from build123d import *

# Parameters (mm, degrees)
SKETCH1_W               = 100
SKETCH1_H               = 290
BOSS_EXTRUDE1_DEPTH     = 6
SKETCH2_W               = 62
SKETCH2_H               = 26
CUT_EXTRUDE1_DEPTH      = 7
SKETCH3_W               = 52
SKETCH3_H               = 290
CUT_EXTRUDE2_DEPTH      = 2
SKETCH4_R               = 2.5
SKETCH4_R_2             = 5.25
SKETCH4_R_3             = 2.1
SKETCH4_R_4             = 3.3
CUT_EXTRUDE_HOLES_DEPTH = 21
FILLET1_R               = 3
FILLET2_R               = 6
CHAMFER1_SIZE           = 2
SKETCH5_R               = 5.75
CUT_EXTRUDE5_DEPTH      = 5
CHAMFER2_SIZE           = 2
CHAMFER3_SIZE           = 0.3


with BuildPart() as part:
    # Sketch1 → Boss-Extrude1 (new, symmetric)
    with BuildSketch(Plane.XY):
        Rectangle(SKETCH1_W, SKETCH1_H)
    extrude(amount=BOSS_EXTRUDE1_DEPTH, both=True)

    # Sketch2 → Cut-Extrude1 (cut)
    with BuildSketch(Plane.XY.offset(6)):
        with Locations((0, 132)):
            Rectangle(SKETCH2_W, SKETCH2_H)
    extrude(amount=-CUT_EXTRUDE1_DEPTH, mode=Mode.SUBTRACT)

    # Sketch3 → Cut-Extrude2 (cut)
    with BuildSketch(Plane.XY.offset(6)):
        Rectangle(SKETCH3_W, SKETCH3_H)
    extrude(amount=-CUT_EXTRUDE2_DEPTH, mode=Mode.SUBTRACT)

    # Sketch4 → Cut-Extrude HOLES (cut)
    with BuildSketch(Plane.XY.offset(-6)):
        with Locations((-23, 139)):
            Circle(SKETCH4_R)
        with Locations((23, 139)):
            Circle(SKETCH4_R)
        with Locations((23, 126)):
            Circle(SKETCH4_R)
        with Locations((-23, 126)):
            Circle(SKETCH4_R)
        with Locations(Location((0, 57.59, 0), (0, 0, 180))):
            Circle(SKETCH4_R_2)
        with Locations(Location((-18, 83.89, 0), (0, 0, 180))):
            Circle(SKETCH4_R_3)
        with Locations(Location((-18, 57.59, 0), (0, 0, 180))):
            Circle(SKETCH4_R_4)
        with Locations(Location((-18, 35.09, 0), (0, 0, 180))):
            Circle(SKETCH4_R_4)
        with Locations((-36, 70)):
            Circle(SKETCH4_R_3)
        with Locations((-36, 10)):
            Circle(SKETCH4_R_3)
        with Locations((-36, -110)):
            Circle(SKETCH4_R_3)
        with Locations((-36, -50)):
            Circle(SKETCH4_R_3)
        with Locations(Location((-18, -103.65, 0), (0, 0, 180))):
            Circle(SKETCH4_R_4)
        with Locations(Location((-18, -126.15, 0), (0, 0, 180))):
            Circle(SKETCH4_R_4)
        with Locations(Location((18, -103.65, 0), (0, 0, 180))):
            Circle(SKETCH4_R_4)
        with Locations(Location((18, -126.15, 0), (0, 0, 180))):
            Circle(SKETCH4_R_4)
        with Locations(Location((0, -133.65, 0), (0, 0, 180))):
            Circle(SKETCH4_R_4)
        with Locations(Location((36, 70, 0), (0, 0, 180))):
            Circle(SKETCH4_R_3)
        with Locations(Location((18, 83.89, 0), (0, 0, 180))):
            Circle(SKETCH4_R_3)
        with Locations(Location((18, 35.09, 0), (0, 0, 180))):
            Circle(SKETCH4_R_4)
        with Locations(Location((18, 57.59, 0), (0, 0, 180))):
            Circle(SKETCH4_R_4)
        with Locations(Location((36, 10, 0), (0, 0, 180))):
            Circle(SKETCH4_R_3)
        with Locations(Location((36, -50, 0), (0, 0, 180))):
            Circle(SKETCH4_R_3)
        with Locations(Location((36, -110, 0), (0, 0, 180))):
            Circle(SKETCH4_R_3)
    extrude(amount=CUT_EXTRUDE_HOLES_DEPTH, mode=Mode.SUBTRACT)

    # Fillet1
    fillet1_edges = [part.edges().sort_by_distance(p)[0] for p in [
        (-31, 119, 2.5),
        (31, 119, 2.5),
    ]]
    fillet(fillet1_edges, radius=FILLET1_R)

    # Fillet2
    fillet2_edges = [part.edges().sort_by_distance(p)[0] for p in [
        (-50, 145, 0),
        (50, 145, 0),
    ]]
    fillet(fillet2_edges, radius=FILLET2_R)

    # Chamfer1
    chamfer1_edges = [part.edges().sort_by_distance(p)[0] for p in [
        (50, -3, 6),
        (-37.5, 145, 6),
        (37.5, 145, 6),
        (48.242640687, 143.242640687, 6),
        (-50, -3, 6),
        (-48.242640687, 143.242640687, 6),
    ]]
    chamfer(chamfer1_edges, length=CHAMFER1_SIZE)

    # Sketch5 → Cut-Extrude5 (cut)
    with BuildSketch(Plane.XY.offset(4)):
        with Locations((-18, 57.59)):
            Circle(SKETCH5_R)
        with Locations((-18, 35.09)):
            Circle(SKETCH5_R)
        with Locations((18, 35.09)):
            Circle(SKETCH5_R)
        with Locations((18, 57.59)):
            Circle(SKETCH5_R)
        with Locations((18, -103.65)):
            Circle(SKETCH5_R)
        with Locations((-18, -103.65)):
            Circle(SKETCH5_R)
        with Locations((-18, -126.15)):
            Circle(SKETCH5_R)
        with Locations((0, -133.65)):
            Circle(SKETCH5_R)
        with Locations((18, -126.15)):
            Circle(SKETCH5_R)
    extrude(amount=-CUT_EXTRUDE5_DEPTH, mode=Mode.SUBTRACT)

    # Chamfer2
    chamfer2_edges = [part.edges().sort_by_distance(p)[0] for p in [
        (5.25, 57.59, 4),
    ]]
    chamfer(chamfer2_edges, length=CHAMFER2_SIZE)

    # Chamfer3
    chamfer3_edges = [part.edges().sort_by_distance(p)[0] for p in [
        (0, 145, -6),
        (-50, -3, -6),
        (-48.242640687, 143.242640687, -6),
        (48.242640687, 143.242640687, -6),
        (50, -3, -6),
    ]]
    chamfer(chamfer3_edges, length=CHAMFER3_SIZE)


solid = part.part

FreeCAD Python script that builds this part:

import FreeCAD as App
import Part
import Sketcher

V = App.Vector


def edges_at(feature, points):
    """Names of the edges that pass closest to the given points."""
    edges = feature.Shape.Edges
    near = lambda p: min(range(len(edges)), key=lambda i: edges[i].distToShape(Part.Vertex(*p))[0])
    return sorted({f"Edge{near(p) + 1}" for p in points})


def add_polygon(sketch, points):
    """Adds a closed chain of lines whose ends are joined by coincident constraints."""
    first, n = sketch.GeometryCount, len(points)
    for a, b in zip(points, points[1:] + points[:1]):
        sketch.addGeometry(Part.LineSegment(App.Vector(*a, 0), App.Vector(*b, 0)), False)
    for i in range(n):
        sketch.addConstraint(Sketcher.Constraint("Coincident", first + i, 2, first + (i + 1) % n, 1))

doc = App.newDocument("Part")
body = doc.addObject("PartDesign::Body", "Body")

sketch1 = body.newObject("Sketcher::SketchObject", "Sketch")
sketch1.AttachmentSupport = (doc.getObject("XY_Plane"), [""])
sketch1.MapMode = "FlatFace"
add_polygon(sketch1, [(-50, 145), (-50, -145), (50, -145), (50, 145)])
sketch1.addConstraint([
    Sketcher.Constraint("Vertical", 0),
    Sketcher.Constraint("Horizontal", 1),
    Sketcher.Constraint("Vertical", 2),
    Sketcher.Constraint("Horizontal", 3),
    Sketcher.Constraint("Symmetric", 0, 2, 2, 2, -1, 1),
    Sketcher.Constraint("DistanceX", 1, 1, 1, 2, 100.0),
    Sketcher.Constraint("DistanceY", 0, 2, 0, 1, 290.0),
])
pad1 = body.newObject("PartDesign::Pad", "Pad")
pad1.Profile = sketch1
pad1.Length = 12
pad1.Midplane = True

sketch2 = body.newObject("Sketcher::SketchObject", "Sketch001")
sketch2.AttachmentSupport = (doc.getObject("XY_Plane"), [""])
sketch2.MapMode = "FlatFace"
sketch2.AttachmentOffset = App.Placement(V(0, 0, 6), App.Rotation())
add_polygon(sketch2, [(-31, 145), (-31, 119), (31, 119), (31, 145)])
sketch2.addConstraint([
    Sketcher.Constraint("Vertical", 0),
    Sketcher.Constraint("Horizontal", 1),
    Sketcher.Constraint("Vertical", 2),
    Sketcher.Constraint("Horizontal", 3),
    Sketcher.Constraint("DistanceX", 1, 1, 1, 2, 62.0),
    Sketcher.Constraint("DistanceY", 0, 2, 0, 1, 26.0),
    Sketcher.Constraint("DistanceX", 0, 2, -1, 1, 31.0),
    Sketcher.Constraint("DistanceY", -1, 1, 0, 2, 119.0),
])
pocket1 = body.newObject("PartDesign::Pocket", "Pocket")
pocket1.Profile = sketch2
pocket1.Length = 7

sketch3 = body.newObject("Sketcher::SketchObject", "Sketch002")
sketch3.AttachmentSupport = (doc.getObject("XY_Plane"), [""])
sketch3.MapMode = "FlatFace"
sketch3.AttachmentOffset = App.Placement(V(0, 0, 6), App.Rotation())
add_polygon(sketch3, [(-26, 145), (-26, -145), (26, -145), (26, 145)])
sketch3.addConstraint([
    Sketcher.Constraint("Vertical", 0),
    Sketcher.Constraint("Horizontal", 1),
    Sketcher.Constraint("Vertical", 2),
    Sketcher.Constraint("Horizontal", 3),
    Sketcher.Constraint("Symmetric", 0, 2, 2, 2, -1, 1),
    Sketcher.Constraint("DistanceX", 1, 1, 1, 2, 52.0),
    Sketcher.Constraint("DistanceY", 0, 2, 0, 1, 290.0),
])
pocket2 = body.newObject("PartDesign::Pocket", "Pocket001")
pocket2.Profile = sketch3
pocket2.Length = 2

sketch4 = body.newObject("Sketcher::SketchObject", "Sketch003")
sketch4.AttachmentSupport = (doc.getObject("XY_Plane"), [""])
sketch4.MapMode = "FlatFace"
sketch4.AttachmentOffset = App.Placement(V(0, 0, -6), App.Rotation())
sketch4.addGeometry([
    Part.Circle(V(-23, 139, 0), V(0, 0, 1), 2.5),
    Part.Circle(V(23, 139, 0), V(0, 0, 1), 2.5),
    Part.Circle(V(23, 126, 0), V(0, 0, 1), 2.5),
    Part.Circle(V(-23, 126, 0), V(0, 0, 1), 2.5),
    Part.Circle(V(0, 57.6, 0), V(0, 0, 1), 5.2),
    Part.Circle(V(-18, 83.9, 0), V(0, 0, 1), 2.1),
    Part.Circle(V(-18, 57.6, 0), V(0, 0, 1), 3.3),
    Part.Circle(V(-18, 35.1, 0), V(0, 0, 1), 3.3),
    Part.Circle(V(-36, 70, 0), V(0, 0, 1), 2.1),
    Part.Circle(V(-36, 10, 0), V(0, 0, 1), 2.1),
    Part.Circle(V(-36, -110, 0), V(0, 0, 1), 2.1),
    Part.Circle(V(-36, -50, 0), V(0, 0, 1), 2.1),
    Part.Circle(V(-18, -103.7, 0), V(0, 0, 1), 3.3),
    Part.Circle(V(-18, -126.2, 0), V(0, 0, 1), 3.3),
    Part.Circle(V(18, -103.7, 0), V(0, 0, 1), 3.3),
    Part.Circle(V(18, -126.2, 0), V(0, 0, 1), 3.3),
    Part.Circle(V(0, -133.7, 0), V(0, 0, 1), 3.3),
    Part.Circle(V(36, 70, 0), V(0, 0, 1), 2.1),
    Part.Circle(V(18, 83.9, 0), V(0, 0, 1), 2.1),
    Part.Circle(V(18, 35.1, 0), V(0, 0, 1), 3.3),
    Part.Circle(V(18, 57.6, 0), V(0, 0, 1), 3.3),
    Part.Circle(V(36, 10, 0), V(0, 0, 1), 2.1),
    Part.Circle(V(36, -50, 0), V(0, 0, 1), 2.1),
    Part.Circle(V(36, -110, 0), V(0, 0, 1), 2.1),
], False)
sketch4.addConstraint([
    Sketcher.Constraint("Equal", 0, 1),
    Sketcher.Constraint("Equal", 1, 2),
    Sketcher.Constraint("Equal", 2, 3),
    Sketcher.Constraint("Equal", 6, 7),
    Sketcher.Constraint("Equal", 5, 8),
    Sketcher.Constraint("Equal", 8, 9),
    Sketcher.Constraint("Equal", 9, 10),
    Sketcher.Constraint("Equal", 10, 11),
    Sketcher.Constraint("Equal", 7, 12),
    Sketcher.Constraint("Equal", 12, 13),
    Sketcher.Constraint("Equal", 13, 14),
    Sketcher.Constraint("Equal", 14, 15),
    Sketcher.Constraint("Equal", 15, 16),
    Sketcher.Constraint("Equal", 11, 17),
    Sketcher.Constraint("Equal", 17, 18),
    Sketcher.Constraint("Equal", 16, 19),
    Sketcher.Constraint("Equal", 19, 20),
    Sketcher.Constraint("Equal", 18, 21),
    Sketcher.Constraint("Equal", 21, 22),
    Sketcher.Constraint("Equal", 22, 23),
    Sketcher.Constraint("Symmetric", 0, 3, 1, 3, -2),
    Sketcher.Constraint("Symmetric", 2, 3, 3, 3, -2),
    Sketcher.Constraint("Symmetric", 12, 3, 14, 3, -2),
    Sketcher.Constraint("Symmetric", 13, 3, 15, 3, -2),
    Sketcher.Constraint("Symmetric", 8, 3, 17, 3, -2),
    Sketcher.Constraint("Symmetric", 5, 3, 18, 3, -2),
    Sketcher.Constraint("Symmetric", 7, 3, 19, 3, -2),
    Sketcher.Constraint("Symmetric", 6, 3, 20, 3, -2),
    Sketcher.Constraint("Symmetric", 9, 3, 21, 3, -2),
    Sketcher.Constraint("Symmetric", 11, 3, 22, 3, -2),
    Sketcher.Constraint("Symmetric", 10, 3, 23, 3, -2),
    Sketcher.Constraint("PointOnObject", 4, 3, -2),
    Sketcher.Constraint("PointOnObject", 16, 3, -2),
    Sketcher.Constraint("Horizontal", 4, 3, 6, 3),
    Sketcher.Constraint("Vertical", 1, 3, 2, 3),
    Sketcher.Constraint("Vertical", 5, 3, 6, 3),
    Sketcher.Constraint("Vertical", 6, 3, 7, 3),
    Sketcher.Constraint("Vertical", 8, 3, 9, 3),
    Sketcher.Constraint("Vertical", 9, 3, 10, 3),
    Sketcher.Constraint("Vertical", 10, 3, 11, 3),
    Sketcher.Constraint("Vertical", 7, 3, 12, 3),
    Sketcher.Constraint("Vertical", 12, 3, 13, 3),
    Sketcher.Constraint("Diameter", 0, 5.0),
    Sketcher.Constraint("Diameter", 4, 10.5),
    Sketcher.Constraint("Diameter", 5, 4.2),
    Sketcher.Constraint("Diameter", 6, 6.6),
    Sketcher.Constraint("DistanceX", 0, 3, -1, 1, 23.0),
    Sketcher.Constraint("DistanceY", -1, 1, 0, 3, 139.0),
    Sketcher.Constraint("DistanceY", -1, 1, 2, 3, 126.0),
    Sketcher.Constraint("DistanceX", 5, 3, -1, 1, 18.0),
    Sketcher.Constraint("DistanceX", 8, 3, -1, 1, 36.0),
    Sketcher.Constraint("DistanceY", -1, 1, 8, 3, 70.0),
    Sketcher.Constraint("DistanceY", -1, 1, 9, 3, 10.0),
    Sketcher.Constraint("DistanceY", 10, 3, -1, 1, 110.0),
    Sketcher.Constraint("DistanceY", 11, 3, -1, 1, 50.0),
    Sketcher.Constraint("DistanceY", 16, 3, 12, 3, 30.0),
    Sketcher.Constraint("DistanceY", 4, 3, 5, 3, 26.3),
    Sketcher.Constraint("DistanceY", 7, 3, 6, 3, 22.5),
    Sketcher.Constraint("DistanceY", 13, 3, 12, 3, 22.5),
    Sketcher.Constraint("DistanceY", -1, 1, 4, 3, 57.59),
    Sketcher.Constraint("DistanceY", 12, 3, -1, 1, 103.65),
])
pocket3 = body.newObject("PartDesign::Pocket", "Pocket002")
pocket3.Profile = sketch4
pocket3.Length = 21
pocket3.Reversed = True
doc.recompute()

fillet = body.newObject("PartDesign::Fillet", "Fillet")
fillet.Base = (pocket3, edges_at(pocket3, [(-31, 119, 2.5), (31, 119, 2.5)]))
fillet.Radius = 3
doc.recompute()

fillet2 = body.newObject("PartDesign::Fillet", "Fillet001")
fillet2.Base = (fillet, edges_at(fillet, [(-50, 145, 0), (50, 145, 0)]))
fillet2.Radius = 6
doc.recompute()

chamfer = body.newObject("PartDesign::Chamfer", "Chamfer")
chamfer.Base = (fillet2, edges_at(fillet2, [
    (50, -3, 6),
    (-37.5, 145, 6),
    (37.5, 145, 6),
    (48.243, 143.243, 6),
    (-50, -3, 6),
    (-48.243, 143.243, 6),
]))
chamfer.Size = 2

sketch5 = body.newObject("Sketcher::SketchObject", "Sketch004")
sketch5.AttachmentSupport = (doc.getObject("XY_Plane"), [""])
sketch5.MapMode = "FlatFace"
sketch5.AttachmentOffset = App.Placement(V(0, 0, 4), App.Rotation())
sketch5.addGeometry([
    Part.Circle(V(-18, 58, 0), V(0, 0, 1), 6),
    Part.Circle(V(-18, 35, 0), V(0, 0, 1), 6),
    Part.Circle(V(18, 35, 0), V(0, 0, 1), 6),
    Part.Circle(V(18, 58, 0), V(0, 0, 1), 6),
    Part.Circle(V(18, -104, 0), V(0, 0, 1), 6),
    Part.Circle(V(-18, -104, 0), V(0, 0, 1), 6),
    Part.Circle(V(-18, -126, 0), V(0, 0, 1), 6),
    Part.Circle(V(0, -134, 0), V(0, 0, 1), 6),
    Part.Circle(V(18, -126, 0), V(0, 0, 1), 6),
], False)
sketch5.addConstraint([
    Sketcher.Constraint("Equal", 0, 1),
    Sketcher.Constraint("Equal", 1, 2),
    Sketcher.Constraint("Equal", 2, 3),
    Sketcher.Constraint("Equal", 3, 4),
    Sketcher.Constraint("Equal", 4, 5),
    Sketcher.Constraint("Equal", 5, 6),
    Sketcher.Constraint("Equal", 6, 7),
    Sketcher.Constraint("Equal", 7, 8),
    Sketcher.Constraint("Symmetric", 1, 3, 2, 3, -2),
    Sketcher.Constraint("Symmetric", 0, 3, 3, 3, -2),
    Sketcher.Constraint("Symmetric", 4, 3, 5, 3, -2),
    Sketcher.Constraint("Symmetric", 6, 3, 8, 3, -2),
    Sketcher.Constraint("PointOnObject", 7, 3, -2),
    Sketcher.Constraint("Vertical", 0, 3, 1, 3),
    Sketcher.Constraint("Vertical", 3, 3, 4, 3),
    Sketcher.Constraint("Vertical", 5, 3, 6, 3),
    Sketcher.Constraint("Diameter", 0, 11.5),
    Sketcher.Constraint("DistanceX", 0, 3, -1, 1, 18.0),
    Sketcher.Constraint("DistanceY", 7, 3, 4, 3, 30.0),
    Sketcher.Constraint("DistanceY", 1, 3, 0, 3, 22.5),
    Sketcher.Constraint("DistanceY", 6, 3, 5, 3, 22.5),
    Sketcher.Constraint("DistanceY", -1, 1, 0, 3, 57.59),
    Sketcher.Constraint("DistanceY", 4, 3, -1, 1, 103.65),
])
pocket4 = body.newObject("PartDesign::Pocket", "Pocket003")
pocket4.Profile = sketch5
pocket4.Length = 5
doc.recompute()

chamfer2 = body.newObject("PartDesign::Chamfer", "Chamfer001")
chamfer2.Base = (pocket4, edges_at(pocket4, [(5.25, 57.59, 4)]))
chamfer2.Size = 2
doc.recompute()

chamfer3 = body.newObject("PartDesign::Chamfer", "Chamfer002")
chamfer3.Base = (chamfer2, edges_at(chamfer2, [
    (0, 145, -6),
    (-50, -3, -6),
    (-48.243, 143.243, -6),
    (48.243, 143.243, -6),
    (50, -3, -6),
]))
chamfer3.Size = 0.3

doc.recompute()
